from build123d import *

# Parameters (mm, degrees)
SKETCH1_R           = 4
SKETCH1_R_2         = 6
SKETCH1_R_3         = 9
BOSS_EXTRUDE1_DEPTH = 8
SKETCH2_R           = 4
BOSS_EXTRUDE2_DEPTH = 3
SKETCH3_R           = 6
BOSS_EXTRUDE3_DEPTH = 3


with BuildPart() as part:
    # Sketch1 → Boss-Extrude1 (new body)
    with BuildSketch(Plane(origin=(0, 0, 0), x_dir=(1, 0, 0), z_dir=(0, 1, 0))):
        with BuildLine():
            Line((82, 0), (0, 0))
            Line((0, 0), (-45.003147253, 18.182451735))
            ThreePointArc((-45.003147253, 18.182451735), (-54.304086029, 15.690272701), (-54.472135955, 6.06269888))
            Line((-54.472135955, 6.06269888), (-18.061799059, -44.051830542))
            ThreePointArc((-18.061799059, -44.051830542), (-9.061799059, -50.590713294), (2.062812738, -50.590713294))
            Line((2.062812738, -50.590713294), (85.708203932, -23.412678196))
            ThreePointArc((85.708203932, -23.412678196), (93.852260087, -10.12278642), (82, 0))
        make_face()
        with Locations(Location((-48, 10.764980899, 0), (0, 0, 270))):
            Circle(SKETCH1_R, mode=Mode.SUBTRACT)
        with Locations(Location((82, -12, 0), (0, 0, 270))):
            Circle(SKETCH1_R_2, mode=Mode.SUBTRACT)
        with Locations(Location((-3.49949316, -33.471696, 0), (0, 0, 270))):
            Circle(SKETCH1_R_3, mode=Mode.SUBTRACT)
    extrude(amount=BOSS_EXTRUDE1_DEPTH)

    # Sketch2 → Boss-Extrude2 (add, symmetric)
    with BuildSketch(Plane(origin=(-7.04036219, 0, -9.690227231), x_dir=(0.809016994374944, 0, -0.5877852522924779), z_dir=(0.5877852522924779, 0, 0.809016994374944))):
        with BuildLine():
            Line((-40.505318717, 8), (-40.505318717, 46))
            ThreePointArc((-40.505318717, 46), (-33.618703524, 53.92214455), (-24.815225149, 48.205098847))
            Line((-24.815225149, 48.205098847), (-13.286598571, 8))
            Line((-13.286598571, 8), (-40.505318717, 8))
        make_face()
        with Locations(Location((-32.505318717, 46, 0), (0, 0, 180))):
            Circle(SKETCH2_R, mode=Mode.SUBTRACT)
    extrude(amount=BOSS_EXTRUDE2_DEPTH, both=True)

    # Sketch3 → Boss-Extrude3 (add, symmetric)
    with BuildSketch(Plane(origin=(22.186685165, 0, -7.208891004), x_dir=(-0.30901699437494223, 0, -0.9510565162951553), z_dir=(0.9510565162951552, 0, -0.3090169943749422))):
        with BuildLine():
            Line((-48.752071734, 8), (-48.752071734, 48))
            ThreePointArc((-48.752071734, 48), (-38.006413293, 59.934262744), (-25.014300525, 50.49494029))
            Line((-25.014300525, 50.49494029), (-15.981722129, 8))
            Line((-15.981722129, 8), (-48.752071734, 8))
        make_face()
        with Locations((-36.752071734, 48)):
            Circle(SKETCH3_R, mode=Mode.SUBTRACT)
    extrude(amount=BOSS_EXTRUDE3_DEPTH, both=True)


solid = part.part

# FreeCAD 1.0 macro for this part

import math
import FreeCAD as App
import Part
import Sketcher
from FreeCAD import Vector
Q = App.Units.Quantity

doc = App.newDocument("Part")
body = doc.addObject("PartDesign::Body", "Body")

# Sketch on XZ plane
sketch1 = body.newObject("Sketcher::SketchObject", "Sketch")
sketch1.AttachmentSupport = (doc.getObject("XZ_Plane"), [""])
sketch1.MapMode = "FlatFace"
sketch1.addGeometry(Part.LineSegment(Vector(82, 0, 0), Vector(0, 0, 0)), False)
sketch1.addGeometry(Part.LineSegment(Vector(0, 0, 0), Vector(-45, -18.2, 0)), False)
sketch1.addGeometry(Part.ArcOfCircle(Part.Circle(Vector(-48, -10.8, 0), Vector(0, 0, 1), 8), math.radians(144), math.radians(292)), False)
sketch1.addGeometry(Part.LineSegment(Vector(-54.5, -6.1, 0), Vector(-18.1, 44.1, 0)), False)
sketch1.addGeometry(Part.ArcOfCircle(Part.Circle(Vector(-3.5, 33.5, 0), Vector(0, 0, 1), 18), math.radians(72), math.radians(144)), False)
sketch1.addGeometry(Part.LineSegment(Vector(2.1, 50.6, 0), Vector(85.7, 23.4, 0)), False)
sketch1.addGeometry(Part.ArcOfCircle(Part.Circle(Vector(82, 12, 0), Vector(0, 0, 1), 12), math.radians(-90), math.radians(72)), False)
sketch1.addGeometry(Part.Circle(Vector(-3.5, 33.5, 0), Vector(0, 0, 1), 9), False)
sketch1.addGeometry(Part.Circle(Vector(-48, -10.8, 0), Vector(0, 0, 1), 4), False)
sketch1.addGeometry(Part.Circle(Vector(82, 12, 0), Vector(0, 0, 1), 6), False)
sketch1.addConstraint(Sketcher.Constraint("Coincident", 0, 2, 1, 1))
sketch1.addConstraint(Sketcher.Constraint("Tangent", 1, 2, 2, 2))
sketch1.addConstraint(Sketcher.Constraint("Tangent", 2, 1, 3, 1))
sketch1.addConstraint(Sketcher.Constraint("Tangent", 3, 2, 4, 2))
sketch1.addConstraint(Sketcher.Constraint("Tangent", 4, 1, 5, 1))
sketch1.addConstraint(Sketcher.Constraint("Tangent", 5, 2, 6, 2))
sketch1.addConstraint(Sketcher.Constraint("Tangent", 6, 1, 0, 1))
sketch1.addConstraint(Sketcher.Constraint("Horizontal", 0))
sketch1.addConstraint(Sketcher.Constraint("Coincident", 0, 2, -1, 1))
sketch1.addConstraint(Sketcher.Constraint("Coincident", 7, 3, 4, 3))
sketch1.addConstraint(Sketcher.Constraint("Coincident", 8, 3, 2, 3))
sketch1.addConstraint(Sketcher.Constraint("Coincident", 9, 3, 6, 3))
sketch1.addConstraint(Sketcher.Constraint("Diameter", 7, 18.0))
sketch1.addConstraint(Sketcher.Constraint("Diameter", 8, 8.0))
sketch1.addConstraint(Sketcher.Constraint("Diameter", 9, 12.0))
sketch1.addConstraint(Sketcher.Constraint("Radius", 2, 8.0))
sketch1.addConstraint(Sketcher.Constraint("Radius", 4, 18.0))
sketch1.addConstraint(Sketcher.Constraint("Radius", 6, 12.0))
sketch1.addConstraint(Sketcher.Constraint("DistanceX", 0, 2, 0, 1, 82.0))
sketch1.addConstraint(Sketcher.Constraint("Angle", 1, Q("-158 deg")))
sketch1.addConstraint(Sketcher.Constraint("Angle", 3, Q("54 deg")))
sketch1.addConstraint(Sketcher.Constraint("Angle", 5, Q("-18 deg")))
sketch1.addConstraint(Sketcher.Constraint("DistanceX", 2, 3, -1, 1, 48.0))
pad1 = body.newObject("PartDesign::Pad", "Pad")
pad1.Profile = sketch1
pad1.Length = 8
pad1.Reversed = True

# Sketch on an angled plane
sketch2 = body.newObject("Sketcher::SketchObject", "Sketch001")
sketch2.Placement = App.Placement(Vector(-7.040362, 0, -9.690227), App.Rotation(Vector(0.809016994, 0, -0.587785252), Vector(0, 0.999999999, 0), Vector(0.587785252, 0, 0.809016994), "ZXY"))
sketch2.addGeometry(Part.LineSegment(Vector(-40.5, 46, 0), Vector(-40.5, 8, 0)), False)
sketch2.addGeometry(Part.LineSegment(Vector(-40.5, 8, 0), Vector(-13.3, 8, 0)), False)
sketch2.addGeometry(Part.LineSegment(Vector(-13.3, 8, 0), Vector(-24.8, 48.2, 0)), False)
sketch2.addGeometry(Part.ArcOfCircle(Part.Circle(Vector(-32.5, 46, 0), Vector(0, 0, 1), 8), math.radians(16), math.radians(180)), False)
sketch2.addGeometry(Part.Circle(Vector(-32.5, 46, 0), Vector(0, 0, 1), 4), False)
sketch2.addConstraint(Sketcher.Constraint("Coincident", 0, 2, 1, 1))
sketch2.addConstraint(Sketcher.Constraint("Coincident", 1, 2, 2, 1))
sketch2.addConstraint(Sketcher.Constraint("Tangent", 2, 2, 3, 1))
sketch2.addConstraint(Sketcher.Constraint("Tangent", 3, 2, 0, 1))
sketch2.addConstraint(Sketcher.Constraint("Vertical", 0))
sketch2.addConstraint(Sketcher.Constraint("Horizontal", 1))
sketch2.addConstraint(Sketcher.Constraint("Coincident", 4, 3, 3, 3))
sketch2.addConstraint(Sketcher.Constraint("Diameter", 4, 8.0))
sketch2.addConstraint(Sketcher.Constraint("Radius", 3, 8.0))
sketch2.addConstraint(Sketcher.Constraint("DistanceY", 0, 2, 0, 1, 38.0))
sketch2.addConstraint(Sketcher.Constraint("Angle", 2, Q("106 deg")))
sketch2.addConstraint(Sketcher.Constraint("DistanceY", -1, 1, 3, 3, 46.0))
sketch2.addConstraint(Sketcher.Constraint("DistanceX", 1, 2, -1, 1, 13.286599))
pad2 = body.newObject("PartDesign::Pad", "Pad001")
pad2.Profile = sketch2
pad2.Length = 6
pad2.Midplane = True

# Sketch on an angled plane
sketch3 = body.newObject("Sketcher::SketchObject", "Sketch002")
sketch3.Placement = App.Placement(Vector(22.186685, 0, -7.208891), App.Rotation(Vector(-0.309016994, 0, -0.951056516), Vector(0, 0.999999999, 0), Vector(0.951056516, 0, -0.309016994), "ZXY"))
sketch3.addGeometry(Part.LineSegment(Vector(-49, 48, 0), Vector(-49, 8, 0)), False)
sketch3.addGeometry(Part.LineSegment(Vector(-49, 8, 0), Vector(-16, 8, 0)), False)
sketch3.addGeometry(Part.LineSegment(Vector(-16, 8, 0), Vector(-25, 50, 0)), False)
sketch3.addGeometry(Part.ArcOfCircle(Part.Circle(Vector(-37, 48, 0), Vector(0, 0, 1), 12), math.radians(12), math.radians(180)), False)
sketch3.addGeometry(Part.Circle(Vector(-37, 48, 0), Vector(0, 0, 1), 6), False)
sketch3.addConstraint(Sketcher.Constraint("Coincident", 0, 2, 1, 1))
sketch3.addConstraint(Sketcher.Constraint("Coincident", 1, 2, 2, 1))
sketch3.addConstraint(Sketcher.Constraint("Tangent", 2, 2, 3, 1))
sketch3.addConstraint(Sketcher.Constraint("Tangent", 3, 2, 0, 1))
sketch3.addConstraint(Sketcher.Constraint("Vertical", 0))
sketch3.addConstraint(Sketcher.Constraint("Horizontal", 1))
sketch3.addConstraint(Sketcher.Constraint("Coincident", 4, 3, 3, 3))
sketch3.addConstraint(Sketcher.Constraint("Diameter", 4, 12.0))
sketch3.addConstraint(Sketcher.Constraint("Radius", 3, 12.0))
sketch3.addConstraint(Sketcher.Constraint("DistanceY", 0, 2, 0, 1, 40.0))
sketch3.addConstraint(Sketcher.Constraint("Angle", 2, Q("102 deg")))
sketch3.addConstraint(Sketcher.Constraint("DistanceY", -1, 1, 3, 3, 48.0))
sketch3.addConstraint(Sketcher.Constraint("DistanceX", 2, 2, -1, 1, 25.014301))
pad3 = body.newObject("PartDesign::Pad", "Pad002")
pad3.Profile = sketch3
pad3.Length = 6
pad3.Midplane = True

doc.recompute()
